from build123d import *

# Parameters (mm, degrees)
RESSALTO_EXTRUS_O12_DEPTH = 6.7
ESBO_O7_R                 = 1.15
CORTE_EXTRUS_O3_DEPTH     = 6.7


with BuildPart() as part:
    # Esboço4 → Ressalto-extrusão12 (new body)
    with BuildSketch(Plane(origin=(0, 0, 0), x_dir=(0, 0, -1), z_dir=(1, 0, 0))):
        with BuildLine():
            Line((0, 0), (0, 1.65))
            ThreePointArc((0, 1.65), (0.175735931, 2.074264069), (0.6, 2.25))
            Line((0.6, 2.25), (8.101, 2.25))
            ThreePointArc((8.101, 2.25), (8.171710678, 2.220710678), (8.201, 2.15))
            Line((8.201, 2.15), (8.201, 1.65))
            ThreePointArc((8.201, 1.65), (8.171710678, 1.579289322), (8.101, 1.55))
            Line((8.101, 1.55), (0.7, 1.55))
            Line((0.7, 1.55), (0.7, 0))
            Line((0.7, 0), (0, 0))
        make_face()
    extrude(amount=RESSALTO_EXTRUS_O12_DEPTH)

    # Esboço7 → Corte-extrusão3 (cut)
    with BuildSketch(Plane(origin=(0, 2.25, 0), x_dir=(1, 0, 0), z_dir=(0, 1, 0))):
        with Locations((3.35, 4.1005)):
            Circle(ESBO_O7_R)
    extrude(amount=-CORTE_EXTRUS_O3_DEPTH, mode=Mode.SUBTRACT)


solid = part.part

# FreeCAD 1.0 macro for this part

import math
import FreeCAD as App
import Part
import Sketcher

V = App.Vector

doc = App.newDocument("Part")
body = doc.addObject("PartDesign::Body", "Body")

# Sketch on YZ plane
sketch1 = doc.addObject("Sketcher::SketchObject", "Sketch")
body.addObject(sketch1)
sketch1.AttachmentSupport = (doc.YZ_Plane, [""])
sketch1.MapMode = "FlatFace"
sketch1.addGeometry([
    Part.LineSegment(V(1.65, 0, 0), V(0, 0, 0)),  # 0
    Part.LineSegment(V(0, 0, 0), V(0, -0.7, 0)),  # 1
    Part.LineSegment(V(0, -0.7, 0), V(1.55, -0.7, 0)),  # 2
    Part.LineSegment(V(1.55, -0.7, 0), V(1.55, -8.1, 0)),  # 3
    Part.ArcOfCircle(Part.Circle(V(1.65, -8.1, 0), V(0, 0, 1), 0.1), math.radians(180), math.radians(270)),  # 4
    Part.LineSegment(V(1.65, -8.2, 0), V(2.15, -8.2, 0)),  # 5
    Part.ArcOfCircle(Part.Circle(V(2.15, -8.1, 0), V(0, 0, 1), 0.1), math.radians(-90), math.radians(0)),  # 6
    Part.LineSegment(V(2.25, -8.1, 0), V(2.25, -0.6, 0)),  # 7
    Part.ArcOfCircle(Part.Circle(V(1.65, -0.6, 0), V(0, 0, 1), 0.6), math.radians(0), math.radians(90)),  # 8
], False)
sketch1.addConstraint([
    Sketcher.Constraint("Coincident", 0, 2, 1, 1),
    Sketcher.Constraint("Coincident", 1, 2, 2, 1),
    Sketcher.Constraint("Coincident", 2, 2, 3, 1),
    Sketcher.Constraint("Tangent", 3, 2, 4, 1),
    Sketcher.Constraint("Tangent", 4, 2, 5, 1),
    Sketcher.Constraint("Tangent", 5, 2, 6, 1),
    Sketcher.Constraint("Tangent", 6, 2, 7, 1),
    Sketcher.Constraint("Tangent", 7, 2, 8, 1),
    Sketcher.Constraint("Tangent", 8, 2, 0, 1),
    Sketcher.Constraint("Horizontal", 0),
    Sketcher.Constraint("Vertical", 1),
    Sketcher.Constraint("Horizontal", 2),
    Sketcher.Constraint("Vertical", 3),
    Sketcher.Constraint("Horizontal", 5),
    Sketcher.Constraint("Vertical", 7),
    Sketcher.Constraint("Coincident", 0, 2, -1, 1),
    Sketcher.Constraint("Equal", 4, 6),
    Sketcher.Constraint("Vertical", 4, 3, 8, 3),
    Sketcher.Constraint("Radius", 4, 0.1),
    Sketcher.Constraint("Radius", 8, 0.6),
    Sketcher.Constraint("DistanceY", 1, 2, 1, 1, 0.7),
    Sketcher.Constraint("DistanceX", 0, 2, 0, 1, 1.65),
    Sketcher.Constraint("DistanceY", 3, 2, 3, 1, 7.401),
])
pad1 = doc.addObject("PartDesign::Pad", "Pad")
body.addObject(pad1)
pad1.Profile = sketch1
pad1.Length = 6.7

# Sketch on XZ plane
sketch2 = doc.addObject("Sketcher::SketchObject", "Sketch001")
body.addObject(sketch2)
sketch2.AttachmentSupport = (doc.XZ_Plane, [""])
sketch2.MapMode = "FlatFace"
sketch2.AttachmentOffset = App.Placement(V(0, 0, -2.25), App.Rotation())
sketch2.addGeometry(Part.Circle(V(3.4, -4.1, 0), V(0, 0, 1), 1.1), False)
sketch2.addConstraint([
    Sketcher.Constraint("Diameter", 0, 2.3),
    Sketcher.Constraint("DistanceX", -1, 1, 0, 3, 3.35),
    Sketcher.Constraint("DistanceY", 0, 3, -1, 1, 4.1005),
])
pocket1 = doc.addObject("PartDesign::Pocket", "Pocket")
body.addObject(pocket1)
pocket1.Profile = sketch2
pocket1.Length = 6.7
pocket1.Reversed = True

doc.recompute()
